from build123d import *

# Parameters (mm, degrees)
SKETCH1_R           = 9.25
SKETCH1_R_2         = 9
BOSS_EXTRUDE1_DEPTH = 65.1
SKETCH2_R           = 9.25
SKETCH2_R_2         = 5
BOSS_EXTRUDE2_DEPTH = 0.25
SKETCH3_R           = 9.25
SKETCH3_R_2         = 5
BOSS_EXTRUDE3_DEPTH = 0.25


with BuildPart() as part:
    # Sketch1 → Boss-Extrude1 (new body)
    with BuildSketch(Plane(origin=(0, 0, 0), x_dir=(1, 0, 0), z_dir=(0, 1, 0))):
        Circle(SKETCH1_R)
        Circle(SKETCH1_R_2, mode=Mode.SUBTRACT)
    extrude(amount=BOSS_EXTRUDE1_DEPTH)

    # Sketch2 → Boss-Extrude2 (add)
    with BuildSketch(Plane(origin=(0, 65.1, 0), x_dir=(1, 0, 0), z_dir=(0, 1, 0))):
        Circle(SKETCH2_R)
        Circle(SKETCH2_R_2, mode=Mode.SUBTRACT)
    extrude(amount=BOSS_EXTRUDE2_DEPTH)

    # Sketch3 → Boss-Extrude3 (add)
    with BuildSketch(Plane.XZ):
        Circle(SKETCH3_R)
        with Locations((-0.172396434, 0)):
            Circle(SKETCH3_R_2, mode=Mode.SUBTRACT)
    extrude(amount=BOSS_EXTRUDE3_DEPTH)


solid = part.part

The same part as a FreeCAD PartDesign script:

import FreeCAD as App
import Part
import Sketcher
from FreeCAD import Vector

doc = App.newDocument("Part")
params = doc.addObject("Spreadsheet::Sheet", "Params")
for row, (alias, value) in enumerate([
    ("sketch1_diameter", "18 mm"),
    ("sketch1_diameter2", "18.5 mm"),
    ("pad1_length", "65.1 mm"),
    ("sketch2_diameter", "10 mm"),
    ("sketch2_diameter2", "18.5 mm"),
    ("pad2_length", "0.25 mm"),
    ("sketch3_diameter", "10 mm"),
    ("sketch3_diameter2", "18.5 mm"),
    ("pad3_length", "0.25 mm"),
], start=1):
    params.set(f"A{row}", alias)
    params.set(f"B{row}", "=" + value)
    params.setAlias(f"B{row}", alias)

body = doc.addObject("PartDesign::Body", "Body")

# Sketch on XZ plane
sketch1 = body.newObject("Sketcher::SketchObject", "Sketch")
sketch1.AttachmentSupport = (doc.getObject("XZ_Plane"), [""])
sketch1.MapMode = "FlatFace"
sketch1.addGeometry(Part.Circle(Vector(0, 0, 0), Vector(0, 0, 1), 9), False)
sketch1.addGeometry(Part.Circle(Vector(0, 0, 0), Vector(0, 0, 1), 9), False)
sketch1.addConstraint(Sketcher.Constraint("Coincident", 0, 3, -1, 1))
sketch1.addConstraint(Sketcher.Constraint("Coincident", 1, 3, -1, 1))
sketch1.addConstraint(Sketcher.Constraint("Diameter", 1, 18.0))
sketch1.addConstraint(Sketcher.Constraint("Diameter", 0, 18.5))
sketch1.setExpression("Constraints[2]", "Params.sketch1_diameter")
sketch1.setExpression("Constraints[3]", "Params.sketch1_diameter2")
pad1 = body.newObject("PartDesign::Pad", "Pad")
pad1.Profile = sketch1
pad1.setExpression("Length", "Params.pad1_length")
pad1.Reversed = True

# Sketch on XZ plane
sketch2 = body.newObject("Sketcher::SketchObject", "Sketch001")
sketch2.AttachmentSupport = (doc.getObject("XZ_Plane"), [""])
sketch2.MapMode = "FlatFace"
sketch2.AttachmentOffset = App.Placement(Vector(0, 0, -65.1), App.Rotation())
sketch2.addGeometry(Part.Circle(Vector(0, 0, 0), Vector(0, 0, 1), 9), False)
sketch2.addGeometry(Part.Circle(Vector(0, 0, 0), Vector(0, 0, 1), 5), False)
sketch2.addConstraint(Sketcher.Constraint("Coincident", 0, 3, -1, 1))
sketch2.addConstraint(Sketcher.Constraint("Coincident", 1, 3, -1, 1))
sketch2.addConstraint(Sketcher.Constraint("Diameter", 1, 10.0))
sketch2.addConstraint(Sketcher.Constraint("Diameter", 0, 18.5))
sketch2.setExpression("Constraints[2]", "Params.sketch2_diameter")
sketch2.setExpression("Constraints[3]", "Params.sketch2_diameter2")
pad2 = body.newObject("PartDesign::Pad", "Pad001")
pad2.Profile = sketch2
pad2.setExpression("Length", "Params.pad2_length")
pad2.Reversed = True

# Sketch on XZ plane
sketch3 = body.newObject("Sketcher::SketchObject", "Sketch002")
sketch3.AttachmentSupport = (doc.getObject("XZ_Plane"), [""])
sketch3.MapMode = "FlatFace"
sketch3.addGeometry(Part.Circle(Vector(0, 0, 0), Vector(0, 0, 1), 9), False)
sketch3.addGeometry(Part.Circle(Vector(0, 0, 0), Vector(0, 0, 1), 5), False)
sketch3.addConstraint(Sketcher.Constraint("Coincident", 0, 3, -1, 1))
sketch3.addConstraint(Sketcher.Constraint("PointOnObject", 1, 3, -1))
sketch3.addConstraint(Sketcher.Constraint("Diameter", 1, 10.0))
sketch3.addConstraint(Sketcher.Constraint("Diameter", 0, 18.5))
sketch3.addConstraint(Sketcher.Constraint("DistanceX", 1, 3, -1, 1, 0.172396))
sketch3.setExpression("Constraints[2]", "Params.sketch3_diameter")
sketch3.setExpression("Constraints[3]", "Params.sketch3_diameter2")
pad3 = body.newObject("PartDesign::Pad", "Pad002")
pad3.Profile = sketch3
pad3.setExpression("Length", "Params.pad3_length")

doc.recompute()
